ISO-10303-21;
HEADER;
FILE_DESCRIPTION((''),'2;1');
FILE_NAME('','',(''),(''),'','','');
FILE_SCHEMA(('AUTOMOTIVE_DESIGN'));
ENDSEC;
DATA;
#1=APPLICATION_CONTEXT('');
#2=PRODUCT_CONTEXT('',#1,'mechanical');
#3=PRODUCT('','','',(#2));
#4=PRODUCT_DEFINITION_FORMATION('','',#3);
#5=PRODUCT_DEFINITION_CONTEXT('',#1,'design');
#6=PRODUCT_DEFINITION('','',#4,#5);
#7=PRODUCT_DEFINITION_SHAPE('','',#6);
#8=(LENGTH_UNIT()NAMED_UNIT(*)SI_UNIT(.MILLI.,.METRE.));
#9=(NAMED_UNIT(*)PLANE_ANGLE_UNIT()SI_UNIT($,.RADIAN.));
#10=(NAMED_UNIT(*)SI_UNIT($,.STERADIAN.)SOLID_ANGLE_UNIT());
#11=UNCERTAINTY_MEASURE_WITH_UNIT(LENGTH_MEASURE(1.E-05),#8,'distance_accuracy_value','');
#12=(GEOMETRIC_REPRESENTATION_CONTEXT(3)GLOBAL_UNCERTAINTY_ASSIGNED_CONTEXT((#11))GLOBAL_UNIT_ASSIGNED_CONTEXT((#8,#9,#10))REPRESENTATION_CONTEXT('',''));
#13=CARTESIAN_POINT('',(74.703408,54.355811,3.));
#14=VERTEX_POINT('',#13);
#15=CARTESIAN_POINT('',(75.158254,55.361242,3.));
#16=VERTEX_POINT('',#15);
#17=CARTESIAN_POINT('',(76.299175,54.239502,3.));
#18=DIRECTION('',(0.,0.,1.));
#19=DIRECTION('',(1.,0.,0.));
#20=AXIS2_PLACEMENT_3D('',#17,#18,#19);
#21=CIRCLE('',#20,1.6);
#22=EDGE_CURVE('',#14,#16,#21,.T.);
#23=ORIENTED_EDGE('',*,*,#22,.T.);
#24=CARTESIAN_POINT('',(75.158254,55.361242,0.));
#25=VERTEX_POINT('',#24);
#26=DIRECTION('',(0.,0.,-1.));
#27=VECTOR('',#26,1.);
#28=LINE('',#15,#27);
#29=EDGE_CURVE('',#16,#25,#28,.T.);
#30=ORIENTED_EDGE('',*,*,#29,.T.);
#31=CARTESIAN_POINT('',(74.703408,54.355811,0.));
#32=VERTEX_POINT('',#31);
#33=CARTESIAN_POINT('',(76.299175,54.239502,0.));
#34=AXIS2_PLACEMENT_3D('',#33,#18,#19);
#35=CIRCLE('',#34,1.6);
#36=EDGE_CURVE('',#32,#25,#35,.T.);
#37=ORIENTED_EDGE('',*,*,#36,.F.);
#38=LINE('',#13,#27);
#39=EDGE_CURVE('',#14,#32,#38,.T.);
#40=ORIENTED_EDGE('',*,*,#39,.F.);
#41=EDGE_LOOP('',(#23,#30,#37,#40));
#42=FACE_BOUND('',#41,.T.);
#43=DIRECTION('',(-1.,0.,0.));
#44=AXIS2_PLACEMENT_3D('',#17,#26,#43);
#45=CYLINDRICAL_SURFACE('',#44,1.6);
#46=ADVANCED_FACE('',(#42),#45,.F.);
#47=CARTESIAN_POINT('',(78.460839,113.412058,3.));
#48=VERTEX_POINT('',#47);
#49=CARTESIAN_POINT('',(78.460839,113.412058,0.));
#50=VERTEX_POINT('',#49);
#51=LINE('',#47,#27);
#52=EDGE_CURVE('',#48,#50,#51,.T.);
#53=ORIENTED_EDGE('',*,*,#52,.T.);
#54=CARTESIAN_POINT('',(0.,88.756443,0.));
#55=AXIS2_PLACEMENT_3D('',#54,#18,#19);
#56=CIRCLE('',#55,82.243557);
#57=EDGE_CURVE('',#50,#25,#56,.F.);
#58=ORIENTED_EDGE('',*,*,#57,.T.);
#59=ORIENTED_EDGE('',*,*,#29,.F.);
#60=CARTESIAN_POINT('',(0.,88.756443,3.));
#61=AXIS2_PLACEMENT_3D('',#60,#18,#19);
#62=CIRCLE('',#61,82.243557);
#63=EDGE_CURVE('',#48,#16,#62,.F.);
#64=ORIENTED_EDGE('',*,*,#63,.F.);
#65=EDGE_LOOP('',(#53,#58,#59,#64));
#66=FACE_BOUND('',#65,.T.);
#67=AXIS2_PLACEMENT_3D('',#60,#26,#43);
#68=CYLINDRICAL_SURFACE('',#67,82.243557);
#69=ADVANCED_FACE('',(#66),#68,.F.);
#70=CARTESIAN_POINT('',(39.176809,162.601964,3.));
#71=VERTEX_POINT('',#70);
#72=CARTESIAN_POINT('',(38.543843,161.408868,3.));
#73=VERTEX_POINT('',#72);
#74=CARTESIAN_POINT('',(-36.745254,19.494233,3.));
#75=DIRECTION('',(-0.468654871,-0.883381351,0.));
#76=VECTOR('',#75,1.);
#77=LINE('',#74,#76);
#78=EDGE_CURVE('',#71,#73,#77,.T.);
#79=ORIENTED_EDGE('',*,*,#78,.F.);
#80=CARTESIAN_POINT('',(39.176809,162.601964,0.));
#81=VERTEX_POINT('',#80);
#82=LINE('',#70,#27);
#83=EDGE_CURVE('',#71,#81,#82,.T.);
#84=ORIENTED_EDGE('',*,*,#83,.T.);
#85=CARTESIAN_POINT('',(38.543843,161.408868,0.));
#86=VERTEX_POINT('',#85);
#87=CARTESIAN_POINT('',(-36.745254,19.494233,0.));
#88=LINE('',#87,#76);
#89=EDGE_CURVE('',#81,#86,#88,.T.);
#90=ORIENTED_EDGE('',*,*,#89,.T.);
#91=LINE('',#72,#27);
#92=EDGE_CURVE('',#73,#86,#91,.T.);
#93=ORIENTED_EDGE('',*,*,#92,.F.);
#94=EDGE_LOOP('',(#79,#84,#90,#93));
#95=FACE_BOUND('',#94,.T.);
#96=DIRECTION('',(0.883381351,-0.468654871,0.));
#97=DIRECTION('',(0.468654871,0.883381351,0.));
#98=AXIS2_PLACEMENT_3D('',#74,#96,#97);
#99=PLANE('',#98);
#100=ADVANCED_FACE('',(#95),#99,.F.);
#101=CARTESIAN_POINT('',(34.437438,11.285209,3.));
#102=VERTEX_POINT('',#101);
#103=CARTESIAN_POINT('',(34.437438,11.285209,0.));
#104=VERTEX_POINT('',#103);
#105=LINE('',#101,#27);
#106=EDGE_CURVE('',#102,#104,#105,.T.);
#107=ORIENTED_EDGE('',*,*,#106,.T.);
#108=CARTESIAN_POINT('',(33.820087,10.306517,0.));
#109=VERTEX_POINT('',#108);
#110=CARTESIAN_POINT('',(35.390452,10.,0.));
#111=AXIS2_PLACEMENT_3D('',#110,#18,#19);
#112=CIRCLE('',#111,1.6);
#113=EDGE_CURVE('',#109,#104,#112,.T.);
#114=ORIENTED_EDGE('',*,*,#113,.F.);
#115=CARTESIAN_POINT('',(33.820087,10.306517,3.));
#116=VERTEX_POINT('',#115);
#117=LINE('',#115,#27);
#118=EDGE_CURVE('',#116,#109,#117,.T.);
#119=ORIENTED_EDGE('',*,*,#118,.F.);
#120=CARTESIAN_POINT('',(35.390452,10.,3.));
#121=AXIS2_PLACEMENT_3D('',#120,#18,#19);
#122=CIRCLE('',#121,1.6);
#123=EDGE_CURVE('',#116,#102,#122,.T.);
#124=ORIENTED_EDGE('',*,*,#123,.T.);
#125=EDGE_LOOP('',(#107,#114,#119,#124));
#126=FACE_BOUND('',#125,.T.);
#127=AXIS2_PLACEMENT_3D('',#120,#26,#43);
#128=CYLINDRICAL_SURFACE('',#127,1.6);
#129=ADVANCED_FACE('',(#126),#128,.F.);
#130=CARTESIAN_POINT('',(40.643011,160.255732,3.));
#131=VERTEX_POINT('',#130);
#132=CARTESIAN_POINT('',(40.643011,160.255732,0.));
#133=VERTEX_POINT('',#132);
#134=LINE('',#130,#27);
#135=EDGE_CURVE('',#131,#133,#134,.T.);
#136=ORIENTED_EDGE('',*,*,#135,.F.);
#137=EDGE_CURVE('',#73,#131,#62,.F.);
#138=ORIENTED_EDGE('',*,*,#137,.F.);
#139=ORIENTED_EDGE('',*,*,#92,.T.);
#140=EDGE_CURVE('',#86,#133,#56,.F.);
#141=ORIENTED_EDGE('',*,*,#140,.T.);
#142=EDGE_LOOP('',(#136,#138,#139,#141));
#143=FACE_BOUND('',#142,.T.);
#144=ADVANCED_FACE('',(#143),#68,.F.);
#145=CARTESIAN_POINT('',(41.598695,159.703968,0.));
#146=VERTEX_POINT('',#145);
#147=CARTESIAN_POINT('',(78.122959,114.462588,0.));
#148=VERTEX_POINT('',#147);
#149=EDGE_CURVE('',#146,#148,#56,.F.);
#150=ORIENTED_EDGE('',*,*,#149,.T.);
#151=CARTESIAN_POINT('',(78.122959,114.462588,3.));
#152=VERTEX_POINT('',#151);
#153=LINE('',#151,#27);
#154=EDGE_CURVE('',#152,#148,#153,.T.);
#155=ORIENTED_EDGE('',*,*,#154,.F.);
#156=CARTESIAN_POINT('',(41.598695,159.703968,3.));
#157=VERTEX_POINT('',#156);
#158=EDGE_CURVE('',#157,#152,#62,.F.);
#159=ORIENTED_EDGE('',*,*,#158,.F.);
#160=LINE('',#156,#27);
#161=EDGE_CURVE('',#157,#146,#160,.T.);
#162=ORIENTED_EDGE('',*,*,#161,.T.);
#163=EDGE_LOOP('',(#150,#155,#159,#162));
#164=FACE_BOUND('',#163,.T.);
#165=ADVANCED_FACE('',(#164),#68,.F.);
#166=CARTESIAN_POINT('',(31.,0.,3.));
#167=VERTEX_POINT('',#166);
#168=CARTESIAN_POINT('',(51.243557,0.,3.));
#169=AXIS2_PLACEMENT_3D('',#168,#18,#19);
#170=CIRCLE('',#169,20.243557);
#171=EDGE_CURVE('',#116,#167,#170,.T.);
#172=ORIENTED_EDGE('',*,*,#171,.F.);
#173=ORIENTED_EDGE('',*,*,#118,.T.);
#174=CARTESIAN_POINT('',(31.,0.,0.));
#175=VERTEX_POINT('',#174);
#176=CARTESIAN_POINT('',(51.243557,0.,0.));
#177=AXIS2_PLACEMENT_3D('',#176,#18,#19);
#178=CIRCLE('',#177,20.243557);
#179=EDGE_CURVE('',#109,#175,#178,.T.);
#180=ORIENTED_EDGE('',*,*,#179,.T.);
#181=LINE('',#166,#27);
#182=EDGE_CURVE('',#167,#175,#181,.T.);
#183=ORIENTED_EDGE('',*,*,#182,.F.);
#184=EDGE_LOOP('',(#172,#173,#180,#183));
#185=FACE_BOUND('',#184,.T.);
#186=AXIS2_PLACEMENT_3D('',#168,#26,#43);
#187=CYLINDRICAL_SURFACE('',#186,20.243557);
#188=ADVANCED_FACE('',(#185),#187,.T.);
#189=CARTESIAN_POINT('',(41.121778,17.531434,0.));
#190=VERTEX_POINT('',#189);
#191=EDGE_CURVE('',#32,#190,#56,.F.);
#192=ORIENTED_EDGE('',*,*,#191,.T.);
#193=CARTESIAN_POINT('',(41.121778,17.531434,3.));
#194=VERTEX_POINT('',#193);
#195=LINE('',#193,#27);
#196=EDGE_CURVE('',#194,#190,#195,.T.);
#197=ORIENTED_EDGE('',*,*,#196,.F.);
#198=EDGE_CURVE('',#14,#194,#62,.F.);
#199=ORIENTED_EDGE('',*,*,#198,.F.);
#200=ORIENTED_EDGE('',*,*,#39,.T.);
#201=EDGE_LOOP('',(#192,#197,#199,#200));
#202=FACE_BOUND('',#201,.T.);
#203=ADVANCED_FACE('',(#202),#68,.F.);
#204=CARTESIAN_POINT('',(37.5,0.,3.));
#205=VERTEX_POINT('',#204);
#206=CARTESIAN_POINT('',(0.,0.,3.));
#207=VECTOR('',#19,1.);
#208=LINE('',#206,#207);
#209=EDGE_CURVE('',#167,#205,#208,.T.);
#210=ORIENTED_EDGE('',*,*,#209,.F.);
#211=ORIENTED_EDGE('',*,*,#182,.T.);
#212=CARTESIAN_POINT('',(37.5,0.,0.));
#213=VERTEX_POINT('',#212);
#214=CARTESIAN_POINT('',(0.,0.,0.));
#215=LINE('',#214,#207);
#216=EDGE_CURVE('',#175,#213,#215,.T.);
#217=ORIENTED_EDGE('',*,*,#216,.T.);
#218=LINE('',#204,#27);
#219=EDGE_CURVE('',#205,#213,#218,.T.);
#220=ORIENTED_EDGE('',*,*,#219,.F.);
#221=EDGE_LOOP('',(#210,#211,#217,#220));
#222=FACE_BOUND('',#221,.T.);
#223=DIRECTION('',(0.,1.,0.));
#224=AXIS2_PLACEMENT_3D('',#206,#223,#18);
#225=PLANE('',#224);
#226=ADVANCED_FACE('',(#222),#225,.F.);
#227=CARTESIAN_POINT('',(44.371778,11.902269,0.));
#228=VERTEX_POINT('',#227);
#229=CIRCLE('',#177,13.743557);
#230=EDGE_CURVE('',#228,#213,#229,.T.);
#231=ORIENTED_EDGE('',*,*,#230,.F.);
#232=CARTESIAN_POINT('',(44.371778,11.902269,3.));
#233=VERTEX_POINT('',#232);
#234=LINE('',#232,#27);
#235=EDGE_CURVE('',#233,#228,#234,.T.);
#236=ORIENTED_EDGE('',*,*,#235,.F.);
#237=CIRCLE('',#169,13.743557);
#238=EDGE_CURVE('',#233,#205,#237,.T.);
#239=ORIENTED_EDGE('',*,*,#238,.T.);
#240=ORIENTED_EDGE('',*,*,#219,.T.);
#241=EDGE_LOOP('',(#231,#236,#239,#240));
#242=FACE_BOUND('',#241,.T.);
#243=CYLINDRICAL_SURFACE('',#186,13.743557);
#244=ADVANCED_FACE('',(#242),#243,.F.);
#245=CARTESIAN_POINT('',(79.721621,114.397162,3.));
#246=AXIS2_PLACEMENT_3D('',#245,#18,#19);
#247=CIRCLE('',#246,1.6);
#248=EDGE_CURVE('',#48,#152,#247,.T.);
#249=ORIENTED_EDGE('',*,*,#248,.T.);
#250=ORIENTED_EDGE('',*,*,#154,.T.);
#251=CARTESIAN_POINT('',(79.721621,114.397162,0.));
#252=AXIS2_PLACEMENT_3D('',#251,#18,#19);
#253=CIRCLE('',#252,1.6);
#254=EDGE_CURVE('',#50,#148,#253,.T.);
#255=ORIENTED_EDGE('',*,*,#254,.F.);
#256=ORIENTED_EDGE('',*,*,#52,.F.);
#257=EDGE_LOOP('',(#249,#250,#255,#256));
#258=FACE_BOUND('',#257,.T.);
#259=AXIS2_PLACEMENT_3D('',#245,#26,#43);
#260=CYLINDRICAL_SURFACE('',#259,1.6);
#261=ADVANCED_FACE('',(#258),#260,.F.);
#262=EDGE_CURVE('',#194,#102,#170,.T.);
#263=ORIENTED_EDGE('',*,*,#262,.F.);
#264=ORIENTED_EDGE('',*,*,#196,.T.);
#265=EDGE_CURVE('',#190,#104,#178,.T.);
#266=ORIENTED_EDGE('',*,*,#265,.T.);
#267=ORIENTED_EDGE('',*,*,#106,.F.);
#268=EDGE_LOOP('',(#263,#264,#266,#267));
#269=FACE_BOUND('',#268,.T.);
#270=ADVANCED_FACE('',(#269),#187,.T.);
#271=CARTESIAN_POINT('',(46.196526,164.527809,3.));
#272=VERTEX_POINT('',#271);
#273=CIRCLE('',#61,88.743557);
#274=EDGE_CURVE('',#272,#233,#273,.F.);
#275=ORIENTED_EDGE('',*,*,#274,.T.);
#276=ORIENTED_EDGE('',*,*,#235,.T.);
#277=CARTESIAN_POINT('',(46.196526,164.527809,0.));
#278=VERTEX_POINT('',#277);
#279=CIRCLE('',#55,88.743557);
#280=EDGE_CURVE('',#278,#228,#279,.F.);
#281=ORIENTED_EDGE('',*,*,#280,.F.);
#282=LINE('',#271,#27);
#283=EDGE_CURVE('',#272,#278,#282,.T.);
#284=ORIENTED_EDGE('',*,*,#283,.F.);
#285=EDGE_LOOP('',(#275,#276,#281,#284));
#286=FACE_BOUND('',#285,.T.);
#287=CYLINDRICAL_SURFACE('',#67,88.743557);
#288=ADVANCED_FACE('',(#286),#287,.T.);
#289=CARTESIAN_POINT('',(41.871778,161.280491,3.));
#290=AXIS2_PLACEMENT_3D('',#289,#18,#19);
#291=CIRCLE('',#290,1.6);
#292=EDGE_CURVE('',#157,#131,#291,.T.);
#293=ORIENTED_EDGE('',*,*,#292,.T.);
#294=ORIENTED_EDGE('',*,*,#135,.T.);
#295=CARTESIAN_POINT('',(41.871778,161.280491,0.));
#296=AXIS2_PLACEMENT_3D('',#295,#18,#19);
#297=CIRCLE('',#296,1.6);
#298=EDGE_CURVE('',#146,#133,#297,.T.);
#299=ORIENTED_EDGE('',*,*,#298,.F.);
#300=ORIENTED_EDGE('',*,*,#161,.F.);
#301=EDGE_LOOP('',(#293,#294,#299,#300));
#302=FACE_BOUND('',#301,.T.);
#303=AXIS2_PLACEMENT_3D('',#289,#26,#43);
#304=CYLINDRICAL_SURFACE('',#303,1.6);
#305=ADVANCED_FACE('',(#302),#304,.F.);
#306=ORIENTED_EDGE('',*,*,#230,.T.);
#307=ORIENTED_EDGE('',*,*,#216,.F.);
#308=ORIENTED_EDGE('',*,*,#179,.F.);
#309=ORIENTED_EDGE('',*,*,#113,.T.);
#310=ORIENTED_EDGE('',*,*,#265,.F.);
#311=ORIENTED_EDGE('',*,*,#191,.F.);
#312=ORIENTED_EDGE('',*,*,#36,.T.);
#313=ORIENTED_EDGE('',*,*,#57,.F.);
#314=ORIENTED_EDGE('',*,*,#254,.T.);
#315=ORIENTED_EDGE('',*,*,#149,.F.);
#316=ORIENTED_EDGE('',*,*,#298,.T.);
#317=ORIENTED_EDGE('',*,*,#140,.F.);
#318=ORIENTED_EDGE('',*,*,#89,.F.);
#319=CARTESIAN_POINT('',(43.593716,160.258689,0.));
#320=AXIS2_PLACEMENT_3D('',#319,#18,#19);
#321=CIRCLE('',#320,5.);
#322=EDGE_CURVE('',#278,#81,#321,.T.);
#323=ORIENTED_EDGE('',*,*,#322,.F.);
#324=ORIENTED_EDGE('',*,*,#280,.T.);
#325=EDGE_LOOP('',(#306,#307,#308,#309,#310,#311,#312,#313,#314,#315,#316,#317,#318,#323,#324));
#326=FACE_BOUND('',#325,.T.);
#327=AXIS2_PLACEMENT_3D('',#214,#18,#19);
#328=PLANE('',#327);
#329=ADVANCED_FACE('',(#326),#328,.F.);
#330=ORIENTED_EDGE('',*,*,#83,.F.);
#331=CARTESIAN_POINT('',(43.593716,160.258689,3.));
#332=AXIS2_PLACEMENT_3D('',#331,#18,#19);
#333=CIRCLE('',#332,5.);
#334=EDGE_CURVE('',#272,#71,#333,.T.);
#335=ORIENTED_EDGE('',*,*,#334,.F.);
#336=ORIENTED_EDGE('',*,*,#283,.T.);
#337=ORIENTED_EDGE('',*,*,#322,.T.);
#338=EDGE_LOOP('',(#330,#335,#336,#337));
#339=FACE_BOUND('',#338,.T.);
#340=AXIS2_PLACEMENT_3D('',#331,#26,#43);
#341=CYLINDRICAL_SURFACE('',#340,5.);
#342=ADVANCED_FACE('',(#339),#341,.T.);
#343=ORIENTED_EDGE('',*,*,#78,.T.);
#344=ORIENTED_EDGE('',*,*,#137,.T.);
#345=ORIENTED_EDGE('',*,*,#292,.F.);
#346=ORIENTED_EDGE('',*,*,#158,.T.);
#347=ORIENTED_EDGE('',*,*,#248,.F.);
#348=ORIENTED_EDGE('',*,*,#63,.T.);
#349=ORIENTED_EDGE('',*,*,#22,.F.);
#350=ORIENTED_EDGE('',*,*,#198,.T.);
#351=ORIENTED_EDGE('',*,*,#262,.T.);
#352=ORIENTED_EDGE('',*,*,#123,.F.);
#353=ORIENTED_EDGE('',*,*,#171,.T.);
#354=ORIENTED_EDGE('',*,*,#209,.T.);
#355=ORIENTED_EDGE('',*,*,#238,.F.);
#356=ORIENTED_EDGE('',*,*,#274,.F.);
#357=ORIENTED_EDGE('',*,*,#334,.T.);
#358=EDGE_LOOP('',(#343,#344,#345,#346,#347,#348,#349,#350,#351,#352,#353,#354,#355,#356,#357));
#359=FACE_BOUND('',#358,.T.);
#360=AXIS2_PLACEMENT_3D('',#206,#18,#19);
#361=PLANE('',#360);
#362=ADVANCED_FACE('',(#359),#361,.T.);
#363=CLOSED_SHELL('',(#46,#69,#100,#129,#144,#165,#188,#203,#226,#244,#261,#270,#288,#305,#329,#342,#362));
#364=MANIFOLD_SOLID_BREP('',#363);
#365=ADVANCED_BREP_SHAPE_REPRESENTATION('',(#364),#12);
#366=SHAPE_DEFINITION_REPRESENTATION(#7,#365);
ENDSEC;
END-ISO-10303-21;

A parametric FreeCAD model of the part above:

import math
import FreeCAD as App
import Part
import Sketcher

V = App.Vector
Q = App.Units.Quantity

doc = App.newDocument("Part")
body = doc.addObject("PartDesign::Body", "Body")

# Sketch on XY plane
sketch1 = doc.addObject("Sketcher::SketchObject", "Sketch")
body.addObject(sketch1)
sketch1.AttachmentSupport = (doc.XY_Plane, [""])
sketch1.MapMode = "FlatFace"
sketch1.addGeometry(Part.ArcOfCircle(Part.Circle(V(51.2, 0, 0), V(0, 0, 1), 20.2), math.radians(149), math.radians(180)), False)
sketch1.addGeometry(Part.LineSegment(V(31, 0, 0), V(37.5, 0, 0)), False)
sketch1.addGeometry(Part.ArcOfCircle(Part.Circle(V(51.2, 0, 0), V(0, 0, 1), 13.7), math.radians(120), math.radians(180)), False)
sketch1.addGeometry(Part.ArcOfCircle(Part.Circle(V(0, 88.8, 0), V(0, 0, 1), 88.7), math.radians(-60), math.radians(59)), False)
sketch1.addGeometry(Part.ArcOfCircle(Part.Circle(V(43.6, 160.3, 0), V(0, 0, 1), 5), math.radians(59), math.radians(152)), False)
sketch1.addGeometry(Part.LineSegment(V(39.2, 162.6, 0), V(38.5, 161.4, 0)), False)
sketch1.addGeometry(Part.ArcOfCircle(Part.Circle(V(0, 88.8, 0), V(0, 0, 1), 82.2), math.radians(60.38), math.radians(62.05)), False)
sketch1.addGeometry(Part.ArcOfCircle(Part.Circle(V(41.9, 161.3, 0), V(0, 0, 1), 1.6), math.radians(0), math.radians(220)), False)
sketch1.addGeometry(Part.ArcOfCircle(Part.Circle(V(41.9, 161.3, 0), V(0, 0, 1), 1.6), math.radians(-100), math.radians(0)), False)
sketch1.addGeometry(Part.ArcOfCircle(Part.Circle(V(0, 88.8, 0), V(0, 0, 1), 82.2), math.radians(18), math.radians(60)), False)
sketch1.addGeometry(Part.ArcOfCircle(Part.Circle(V(79.7, 114.4, 0), V(0, 0, 1), 1.6), math.radians(0), math.radians(178)), False)
sketch1.addGeometry(Part.ArcOfCircle(Part.Circle(V(79.7, 114.4, 0), V(0, 0, 1), 1.6), math.radians(-142), math.radians(0)), False)
sketch1.addGeometry(Part.ArcOfCircle(Part.Circle(V(0, 88.8, 0), V(0, 0, 1), 82.2), math.radians(-24), math.radians(17)), False)
sketch1.addGeometry(Part.ArcOfCircle(Part.Circle(V(76.3, 54.2, 0), V(0, 0, 1), 1.6), math.radians(0), math.radians(135)), False)
sketch1.addGeometry(Part.ArcOfCircle(Part.Circle(V(76.3, 54.2, 0), V(0, 0, 1), 1.6), math.radians(176), math.radians(360)), False)
sketch1.addGeometry(Part.ArcOfCircle(Part.Circle(V(0, 88.8, 0), V(0, 0, 1), 82.2), math.radians(-60), math.radians(-25)), False)
sketch1.addGeometry(Part.ArcOfCircle(Part.Circle(V(51.2, 0, 0), V(0, 0, 1), 20.2), math.radians(120), math.radians(146)), False)
sketch1.addGeometry(Part.ArcOfCircle(Part.Circle(V(35.4, 10, 0), V(0, 0, 1), 1.6), math.radians(0), math.radians(127)), False)
sketch1.addGeometry(Part.ArcOfCircle(Part.Circle(V(35.4, 10, 0), V(0, 0, 1), 1.6), math.radians(169), math.radians(360)), False)
sketch1.addConstraint(Sketcher.Constraint("Coincident", 0, 2, 1, 1))
sketch1.addConstraint(Sketcher.Constraint("Coincident", 1, 2, 2, 2))
sketch1.addConstraint(Sketcher.Constraint("Tangent", 2, 1, 3, 1))
sketch1.addConstraint(Sketcher.Constraint("Tangent", 3, 2, 4, 1))
sketch1.addConstraint(Sketcher.Constraint("Tangent", 4, 2, 5, 1))
sketch1.addConstraint(Sketcher.Constraint("Coincident", 5, 2, 6, 2))
sketch1.addConstraint(Sketcher.Constraint("Coincident", 6, 1, 7, 2))
sketch1.addConstraint(Sketcher.Constraint("Tangent", 7, 1, 8, 2))
sketch1.addConstraint(Sketcher.Constraint("Coincident", 8, 1, 9, 2))
sketch1.addConstraint(Sketcher.Constraint("Coincident", 9, 1, 10, 2))
sketch1.addConstraint(Sketcher.Constraint("Tangent", 10, 1, 11, 2))
sketch1.addConstraint(Sketcher.Constraint("Coincident", 11, 1, 12, 2))
sketch1.addConstraint(Sketcher.Constraint("Coincident", 12, 1, 13, 2))
sketch1.addConstraint(Sketcher.Constraint("Tangent", 13, 1, 14, 2))
sketch1.addConstraint(Sketcher.Constraint("Coincident", 14, 1, 15, 2))
sketch1.addConstraint(Sketcher.Constraint("Tangent", 15, 1, 16, 1))
sketch1.addConstraint(Sketcher.Constraint("Coincident", 16, 2, 17, 2))
sketch1.addConstraint(Sketcher.Constraint("Tangent", 17, 1, 18, 2))
sketch1.addConstraint(Sketcher.Constraint("Coincident", 18, 1, 0, 1))
sketch1.addConstraint(Sketcher.Constraint("Horizontal", 1))
sketch1.addConstraint(Sketcher.Constraint("Coincident", 2, 3, 0, 3))
sketch1.addConstraint(Sketcher.Constraint("Coincident", 6, 3, 3, 3))
sketch1.addConstraint(Sketcher.Constraint("Coincident", 9, 3, 3, 3))
sketch1.addConstraint(Sketcher.Constraint("Coincident", 12, 3, 3, 3))
sketch1.addConstraint(Sketcher.Constraint("Coincident", 15, 3, 3, 3))
sketch1.addConstraint(Sketcher.Constraint("Coincident", 16, 3, 0, 3))
sketch1.addConstraint(Sketcher.Constraint("Equal", 7, 8))
sketch1.addConstraint(Sketcher.Constraint("Equal", 8, 10))
sketch1.addConstraint(Sketcher.Constraint("Equal", 10, 11))
sketch1.addConstraint(Sketcher.Constraint("Equal", 9, 12))
sketch1.addConstraint(Sketcher.Constraint("Equal", 11, 13))
sketch1.addConstraint(Sketcher.Constraint("Equal", 13, 14))
sketch1.addConstraint(Sketcher.Constraint("Equal", 12, 15))
sketch1.addConstraint(Sketcher.Constraint("Equal", 0, 16))
sketch1.addConstraint(Sketcher.Constraint("Equal", 14, 17))
sketch1.addConstraint(Sketcher.Constraint("Equal", 17, 18))
sketch1.addConstraint(Sketcher.Constraint("PointOnObject", 0, 3, -1))
sketch1.addConstraint(Sketcher.Constraint("PointOnObject", 3, 3, -2))
sketch1.addConstraint(Sketcher.Constraint("PointOnObject", 0, 2, -1))
sketch1.addConstraint(Sketcher.Constraint("Horizontal", 8, 3, 7, 1))
sketch1.addConstraint(Sketcher.Constraint("Horizontal", 11, 3, 10, 1))
sketch1.addConstraint(Sketcher.Constraint("Horizontal", 14, 3, 13, 1))
sketch1.addConstraint(Sketcher.Constraint("Horizontal", 18, 3, 17, 1))
sketch1.addConstraint(Sketcher.Constraint("Radius", 4, Q("5 mm")))
sketch1.addConstraint(Sketcher.Constraint("Radius", 7, Q("1.6 mm")))
sketch1.addConstraint(Sketcher.Constraint("DistanceX", 1, 1, 1, 2, Q("6.5 mm")))
sketch1.addConstraint(Sketcher.Constraint("DistanceY", -1, 1, 17, 3, Q("10 mm")))
sketch1.addConstraint(Sketcher.Constraint("DistanceX", -1, 1, 0, 2, Q("31 mm")))
sketch1.addConstraint(Sketcher.Constraint("Radius", 0, Q("20.243557 mm")))
sketch1.addConstraint(Sketcher.Constraint("Radius", 3, Q("88.743557 mm")))
sketch1.addConstraint(Sketcher.Constraint("Radius", 6, Q("82.243563 mm")))
sketch1.addConstraint(Sketcher.Constraint("Distance", 5, Q("1.350602 mm")))
sketch1.addConstraint(Sketcher.Constraint("DistanceY", 4, 3, 7, 3, Q("1.021801 mm")))
sketch1.addConstraint(Sketcher.Constraint("DistanceY", 10, 3, 4, 2, Q("48.204802 mm")))
sketch1.addConstraint(Sketcher.Constraint("DistanceX", 4, 2, 6, 1, Q("1.466202 mm")))
sketch1.addConstraint(Sketcher.Constraint("DistanceY", 9, 1, 4, 3, Q("45.796102 mm")))
sketch1.addConstraint(Sketcher.Constraint("DistanceY", -1, 1, 4, 3, Q("160.258689 mm")))
sketch1.addConstraint(Sketcher.Constraint("DistanceY", -1, 1, 12, 1, Q("55.361242 mm")))
sketch1.addConstraint(Sketcher.Constraint("DistanceY", -1, 1, 14, 1, Q("54.355811 mm")))
sketch1.addConstraint(Sketcher.Constraint("DistanceY", -1, 1, 16, 2, Q("11.285209 mm")))
pad1 = doc.addObject("PartDesign::Pad", "Pad")
body.addObject(pad1)
pad1.Profile = sketch1
pad1.Length = 3

doc.recompute()
